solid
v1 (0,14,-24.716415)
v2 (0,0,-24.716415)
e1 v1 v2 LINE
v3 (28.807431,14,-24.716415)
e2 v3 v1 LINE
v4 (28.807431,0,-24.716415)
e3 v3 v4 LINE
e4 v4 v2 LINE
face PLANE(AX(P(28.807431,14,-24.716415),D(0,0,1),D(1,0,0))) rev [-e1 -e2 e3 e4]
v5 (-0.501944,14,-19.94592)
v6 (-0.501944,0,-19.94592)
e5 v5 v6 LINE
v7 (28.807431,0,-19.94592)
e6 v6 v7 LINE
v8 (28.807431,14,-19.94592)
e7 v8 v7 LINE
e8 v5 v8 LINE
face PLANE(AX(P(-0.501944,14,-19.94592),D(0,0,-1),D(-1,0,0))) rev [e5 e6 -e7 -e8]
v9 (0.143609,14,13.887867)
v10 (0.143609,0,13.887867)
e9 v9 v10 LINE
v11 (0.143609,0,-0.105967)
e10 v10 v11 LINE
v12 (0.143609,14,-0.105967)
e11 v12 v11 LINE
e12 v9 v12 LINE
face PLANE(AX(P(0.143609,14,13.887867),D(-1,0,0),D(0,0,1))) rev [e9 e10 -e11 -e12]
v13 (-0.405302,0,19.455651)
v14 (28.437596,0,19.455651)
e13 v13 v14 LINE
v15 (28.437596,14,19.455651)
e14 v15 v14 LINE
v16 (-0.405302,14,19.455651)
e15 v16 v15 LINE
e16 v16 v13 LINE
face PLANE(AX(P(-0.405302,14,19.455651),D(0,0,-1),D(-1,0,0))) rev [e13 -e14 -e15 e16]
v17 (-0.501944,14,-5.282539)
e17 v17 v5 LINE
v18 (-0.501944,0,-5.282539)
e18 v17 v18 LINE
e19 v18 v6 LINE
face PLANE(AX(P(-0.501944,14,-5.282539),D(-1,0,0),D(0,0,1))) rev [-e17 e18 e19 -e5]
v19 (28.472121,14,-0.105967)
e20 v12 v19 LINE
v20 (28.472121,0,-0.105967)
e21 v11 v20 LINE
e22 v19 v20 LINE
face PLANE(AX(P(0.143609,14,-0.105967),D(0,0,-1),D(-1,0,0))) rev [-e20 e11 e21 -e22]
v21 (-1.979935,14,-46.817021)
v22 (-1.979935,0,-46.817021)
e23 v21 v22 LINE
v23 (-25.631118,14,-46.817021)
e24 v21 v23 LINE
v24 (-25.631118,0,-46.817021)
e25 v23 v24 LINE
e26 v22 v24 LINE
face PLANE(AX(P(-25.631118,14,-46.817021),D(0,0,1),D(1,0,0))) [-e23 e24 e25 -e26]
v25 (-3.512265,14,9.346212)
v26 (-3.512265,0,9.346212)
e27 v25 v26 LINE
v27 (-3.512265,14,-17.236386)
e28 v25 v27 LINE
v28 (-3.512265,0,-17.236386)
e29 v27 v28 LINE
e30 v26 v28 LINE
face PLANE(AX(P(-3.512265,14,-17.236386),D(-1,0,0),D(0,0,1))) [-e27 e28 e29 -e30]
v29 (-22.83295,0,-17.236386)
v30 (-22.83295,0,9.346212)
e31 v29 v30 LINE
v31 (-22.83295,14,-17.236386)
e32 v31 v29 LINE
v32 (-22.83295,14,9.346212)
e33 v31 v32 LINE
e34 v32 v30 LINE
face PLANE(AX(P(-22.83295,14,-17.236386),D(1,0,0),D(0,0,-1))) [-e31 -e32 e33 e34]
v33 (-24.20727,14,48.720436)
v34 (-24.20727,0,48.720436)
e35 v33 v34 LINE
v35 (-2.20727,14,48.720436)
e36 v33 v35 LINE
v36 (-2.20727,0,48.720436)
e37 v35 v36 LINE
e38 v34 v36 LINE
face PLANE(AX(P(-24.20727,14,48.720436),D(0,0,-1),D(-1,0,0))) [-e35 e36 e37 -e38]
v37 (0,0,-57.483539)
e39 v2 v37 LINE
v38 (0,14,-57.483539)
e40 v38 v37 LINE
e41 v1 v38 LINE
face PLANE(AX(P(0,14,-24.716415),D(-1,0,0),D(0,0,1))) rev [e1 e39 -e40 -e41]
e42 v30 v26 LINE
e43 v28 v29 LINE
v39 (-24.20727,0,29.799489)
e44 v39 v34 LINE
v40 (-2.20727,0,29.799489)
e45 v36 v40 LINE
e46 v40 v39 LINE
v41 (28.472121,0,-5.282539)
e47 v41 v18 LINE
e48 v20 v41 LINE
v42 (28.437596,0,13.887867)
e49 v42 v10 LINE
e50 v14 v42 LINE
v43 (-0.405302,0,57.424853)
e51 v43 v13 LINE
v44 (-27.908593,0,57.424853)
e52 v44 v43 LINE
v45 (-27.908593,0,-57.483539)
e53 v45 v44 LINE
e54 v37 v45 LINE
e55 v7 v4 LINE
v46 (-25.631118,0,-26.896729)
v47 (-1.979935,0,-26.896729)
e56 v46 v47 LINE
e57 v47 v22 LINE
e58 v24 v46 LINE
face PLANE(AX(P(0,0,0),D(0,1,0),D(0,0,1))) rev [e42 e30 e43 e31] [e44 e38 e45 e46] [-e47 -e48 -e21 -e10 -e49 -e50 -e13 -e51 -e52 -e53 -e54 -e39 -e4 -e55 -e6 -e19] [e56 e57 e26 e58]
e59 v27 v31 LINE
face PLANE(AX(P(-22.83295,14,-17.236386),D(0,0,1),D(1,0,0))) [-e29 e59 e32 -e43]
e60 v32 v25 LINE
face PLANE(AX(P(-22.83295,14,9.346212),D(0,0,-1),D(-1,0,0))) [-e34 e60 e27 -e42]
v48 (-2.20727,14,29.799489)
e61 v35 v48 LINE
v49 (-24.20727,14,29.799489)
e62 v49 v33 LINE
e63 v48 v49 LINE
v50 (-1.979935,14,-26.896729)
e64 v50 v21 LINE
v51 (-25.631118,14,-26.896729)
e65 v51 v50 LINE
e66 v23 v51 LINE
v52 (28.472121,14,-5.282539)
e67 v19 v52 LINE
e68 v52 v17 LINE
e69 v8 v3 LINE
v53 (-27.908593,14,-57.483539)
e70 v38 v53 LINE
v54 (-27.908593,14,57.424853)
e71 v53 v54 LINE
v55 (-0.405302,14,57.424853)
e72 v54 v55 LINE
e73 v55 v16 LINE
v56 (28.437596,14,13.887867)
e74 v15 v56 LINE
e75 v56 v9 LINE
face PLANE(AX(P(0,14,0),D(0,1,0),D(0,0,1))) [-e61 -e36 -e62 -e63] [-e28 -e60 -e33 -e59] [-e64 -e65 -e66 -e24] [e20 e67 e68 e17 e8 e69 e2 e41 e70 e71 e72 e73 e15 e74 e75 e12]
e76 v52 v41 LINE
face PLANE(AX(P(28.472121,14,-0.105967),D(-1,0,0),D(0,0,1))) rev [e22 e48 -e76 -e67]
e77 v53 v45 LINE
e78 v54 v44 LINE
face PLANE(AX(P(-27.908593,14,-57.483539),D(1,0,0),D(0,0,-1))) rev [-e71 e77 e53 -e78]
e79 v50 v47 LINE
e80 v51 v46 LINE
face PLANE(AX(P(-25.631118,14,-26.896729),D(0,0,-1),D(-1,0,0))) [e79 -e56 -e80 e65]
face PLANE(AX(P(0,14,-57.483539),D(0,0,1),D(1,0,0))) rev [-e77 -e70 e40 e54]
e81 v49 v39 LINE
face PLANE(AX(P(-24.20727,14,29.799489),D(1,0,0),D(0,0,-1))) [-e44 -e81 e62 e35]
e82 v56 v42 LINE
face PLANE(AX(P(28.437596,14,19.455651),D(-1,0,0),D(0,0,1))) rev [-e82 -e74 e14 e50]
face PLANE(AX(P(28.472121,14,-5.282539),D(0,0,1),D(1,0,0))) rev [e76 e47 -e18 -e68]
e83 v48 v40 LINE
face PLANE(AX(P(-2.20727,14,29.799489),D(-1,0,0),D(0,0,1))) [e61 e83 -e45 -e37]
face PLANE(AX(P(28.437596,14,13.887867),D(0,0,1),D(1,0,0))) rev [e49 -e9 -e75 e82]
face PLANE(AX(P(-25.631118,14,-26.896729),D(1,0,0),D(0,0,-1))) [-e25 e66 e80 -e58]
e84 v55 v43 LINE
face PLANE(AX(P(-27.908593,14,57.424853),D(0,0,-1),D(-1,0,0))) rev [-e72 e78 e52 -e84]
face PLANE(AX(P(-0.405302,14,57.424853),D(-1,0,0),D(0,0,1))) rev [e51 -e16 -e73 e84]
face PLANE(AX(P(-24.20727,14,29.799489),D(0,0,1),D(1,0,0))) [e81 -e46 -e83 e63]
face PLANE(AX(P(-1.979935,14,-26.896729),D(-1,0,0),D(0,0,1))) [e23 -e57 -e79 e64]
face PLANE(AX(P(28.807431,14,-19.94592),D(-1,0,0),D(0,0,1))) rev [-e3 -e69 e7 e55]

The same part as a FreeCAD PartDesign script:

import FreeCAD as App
import Part
import Sketcher

V = App.Vector


def add_polygon(sketch, points):
    """Adds a closed chain of lines whose ends are joined by coincident constraints."""
    first, n = sketch.GeometryCount, len(points)
    for a, b in zip(points, points[1:] + points[:1]):
        sketch.addGeometry(Part.LineSegment(App.Vector(*a, 0), App.Vector(*b, 0)), False)
    for i in range(n):
        sketch.addConstraint(Sketcher.Constraint("Coincident", first + i, 2, first + (i + 1) % n, 1))

doc = App.newDocument("Part")
params = doc.addObject("Spreadsheet::Sheet", "Params")
for row, (alias, value) in enumerate([
    ("sketch1_width", "22 mm"),
    ("pad1_length", "14 mm"),
], start=1):
    params.set(f"A{row}", alias)
    params.set(f"B{row}", "=" + value)
    params.setAlias(f"B{row}", alias)

body = doc.addObject("PartDesign::Body", "Body")

# Sketch on XZ plane
sketch1 = body.newObject("Sketcher::SketchObject", "Sketch")
sketch1.AttachmentSupport = (doc.getObject("XZ_Plane"), [""])
sketch1.MapMode = "FlatFace"
add_polygon(sketch1, [(-27.9, -57.5), (-27.9, 57.4), (-0.4, 57.4), (-0.4, 19.5), (28.4, 19.5), (28.4, 13.9), (0.1, 13.9), (0.1, -0.1), (28.5, -0.1), (28.5, -5.3), (-0.5, -5.3), (-0.5, -19.9), (28.8, -19.9), (28.8, -24.7), (0, -24.7), (0, -57.5)])  # lines 0-15
add_polygon(sketch1, [(-2.2, 48.7), (-24.2, 48.7), (-24.2, 29.8), (-2.2, 29.8)])  # lines 16-19
add_polygon(sketch1, [(-3.5, 9.3), (-22.8, 9.3), (-22.8, -17.2), (-3.5, -17.2)])  # lines 20-23
add_polygon(sketch1, [(-2, -26.9), (-25.6, -26.9), (-25.6, -46.8), (-2, -46.8)])  # lines 24-27
sketch1.addConstraint([
    Sketcher.Constraint("Vertical", 0),
    Sketcher.Constraint("Horizontal", 1),
    Sketcher.Constraint("Vertical", 2),
    Sketcher.Constraint("Horizontal", 3),
    Sketcher.Constraint("Vertical", 4),
    Sketcher.Constraint("Horizontal", 5),
    Sketcher.Constraint("Vertical", 6),
    Sketcher.Constraint("Horizontal", 7),
    Sketcher.Constraint("Vertical", 8),
    Sketcher.Constraint("Horizontal", 9),
    Sketcher.Constraint("Vertical", 10),
    Sketcher.Constraint("Horizontal", 11),
    Sketcher.Constraint("Vertical", 12),
    Sketcher.Constraint("Horizontal", 13),
    Sketcher.Constraint("Vertical", 14),
    Sketcher.Constraint("Horizontal", 15),
    Sketcher.Constraint("Horizontal", 16),
    Sketcher.Constraint("Vertical", 17),
    Sketcher.Constraint("Horizontal", 18),
    Sketcher.Constraint("Vertical", 19),
    Sketcher.Constraint("Horizontal", 20),
    Sketcher.Constraint("Vertical", 21),
    Sketcher.Constraint("Horizontal", 22),
    Sketcher.Constraint("Vertical", 23),
    Sketcher.Constraint("Horizontal", 24),
    Sketcher.Constraint("Vertical", 25),
    Sketcher.Constraint("Horizontal", 26),
    Sketcher.Constraint("Vertical", 27),
    Sketcher.Constraint("PointOnObject", 13, 2, -2),
    Sketcher.Constraint("DistanceX", 16, 2, 16, 1, 22.0),
    Sketcher.Constraint("DistanceX", 3, 1, 3, 2, 28.842899),
    Sketcher.Constraint("DistanceY", 2, 2, 2, 1, 37.969201),
    Sketcher.Constraint("DistanceY", 14, 2, 9, 2, 52.201),
    Sketcher.Constraint("DistanceX", 1, 1, 1, 2, 27.503291),
    Sketcher.Constraint("DistanceX", 13, 2, 13, 1, 28.807431),
    Sketcher.Constraint("DistanceY", 0, 1, 0, 2, 114.908392),
    Sketcher.Constraint("DistanceY", 8, 2, 8, 1, 5.176572),
    Sketcher.Constraint("DistanceY", 10, 2, 10, 1, 14.663381),
    Sketcher.Constraint("DistanceX", 0, 2, 5, 2, 28.052202),
    Sketcher.Constraint("DistanceY", 26, 2, 10, 2, 26.871101),
    Sketcher.Constraint("DistanceX", 7, 1, 7, 2, 28.328512),
    Sketcher.Constraint("DistanceX", 9, 2, 9, 1, 28.974065),
    Sketcher.Constraint("DistanceX", 11, 1, 11, 2, 29.309375),
    Sketcher.Constraint("DistanceX", 20, 2, 20, 1, 19.320685),
    Sketcher.Constraint("DistanceX", 24, 2, 24, 1, 23.651184),
    Sketcher.Constraint("DistanceY", 4, 2, 4, 1, 5.567784),
    Sketcher.Constraint("DistanceY", 12, 2, 12, 1, 4.770495),
    Sketcher.Constraint("DistanceY", 17, 2, 17, 1, 18.920947),
    Sketcher.Constraint("DistanceY", 21, 2, 21, 1, 26.582598),
    Sketcher.Constraint("DistanceY", 25, 2, 25, 1, 19.920293),
    Sketcher.Constraint("DistanceY", -1, 1, 2, 2, 19.455651),
    Sketcher.Constraint("DistanceX", 16, 2, -1, 1, 24.20727),
    Sketcher.Constraint("DistanceY", -1, 1, 17, 2, 29.799489),
    Sketcher.Constraint("DistanceX", 20, 2, -1, 1, 22.83295),
    Sketcher.Constraint("DistanceY", -1, 1, 20, 2, 9.346212),
    Sketcher.Constraint("DistanceX", 24, 2, -1, 1, 25.631118),
])
sketch1.setExpression("Constraints[57]", "Params.sketch1_width")
pad1 = body.newObject("PartDesign::Pad", "Pad")
pad1.Profile = sketch1
pad1.setExpression("Length", "Params.pad1_length")
pad1.Reversed = True

doc.recompute()
